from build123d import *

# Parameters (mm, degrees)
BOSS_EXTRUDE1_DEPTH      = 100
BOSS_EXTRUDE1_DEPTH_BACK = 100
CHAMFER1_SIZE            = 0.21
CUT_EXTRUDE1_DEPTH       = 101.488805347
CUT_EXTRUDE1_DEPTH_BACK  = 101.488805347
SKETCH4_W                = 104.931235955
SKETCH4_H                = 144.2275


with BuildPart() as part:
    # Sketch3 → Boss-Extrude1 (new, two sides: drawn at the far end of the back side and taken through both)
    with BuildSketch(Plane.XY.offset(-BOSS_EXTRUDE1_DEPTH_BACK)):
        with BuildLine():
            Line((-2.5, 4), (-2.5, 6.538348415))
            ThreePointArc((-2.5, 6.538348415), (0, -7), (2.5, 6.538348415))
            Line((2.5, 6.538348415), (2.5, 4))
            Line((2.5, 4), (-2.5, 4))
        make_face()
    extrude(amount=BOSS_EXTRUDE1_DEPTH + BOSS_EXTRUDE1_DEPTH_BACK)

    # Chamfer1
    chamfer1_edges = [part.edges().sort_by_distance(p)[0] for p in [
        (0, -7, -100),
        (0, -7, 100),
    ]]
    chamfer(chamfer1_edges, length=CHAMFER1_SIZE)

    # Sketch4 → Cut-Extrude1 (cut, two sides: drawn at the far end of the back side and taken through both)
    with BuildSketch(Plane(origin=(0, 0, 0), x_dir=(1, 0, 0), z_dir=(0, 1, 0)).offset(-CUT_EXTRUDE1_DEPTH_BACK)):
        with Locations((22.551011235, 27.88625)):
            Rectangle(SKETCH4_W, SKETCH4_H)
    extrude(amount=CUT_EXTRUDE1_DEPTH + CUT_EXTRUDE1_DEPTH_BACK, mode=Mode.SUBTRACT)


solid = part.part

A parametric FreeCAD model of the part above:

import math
import FreeCAD as App
import Part
import Sketcher
from FreeCAD import Vector


def edges_at(feature, points):
    """Names of the edges that pass closest to the given points."""
    edges = feature.Shape.Edges
    near = lambda p: min(range(len(edges)), key=lambda i: edges[i].distToShape(Part.Vertex(*p))[0])
    return sorted({f"Edge{near(p) + 1}" for p in points})

doc = App.newDocument("Part")
params = doc.addObject("Spreadsheet::Sheet", "Params")
for row, (alias, value) in enumerate([
    ("sketch1_radius", "7 mm"),
    ("sketch1_width", "5 mm"),
    ("pad1_length", "100 mm"),
    ("pad1_length2", "100 mm"),
    ("chamfer_size", "0.21 mm"),
], start=1):
    params.set(f"A{row}", alias)
    params.set(f"B{row}", "=" + value)
    params.setAlias(f"B{row}", alias)

body = doc.addObject("PartDesign::Body", "Body")

# Sketch on XY plane
sketch1 = doc.addObject("Sketcher::SketchObject", "Sketch")
body.addObject(sketch1)
sketch1.AttachmentSupport = (doc.XY_Plane, [""])
sketch1.MapMode = "FlatFace"
sketch1.addGeometry([
    Part.LineSegment(Vector(-2.5, 4, 0), Vector(-2.5, 6.5, 0)),
    Part.ArcOfCircle(Part.Circle(Vector(0, 0, 0), Vector(0, 0, 1), 7), math.radians(111), math.radians(429)),
    Part.LineSegment(Vector(2.5, 6.5, 0), Vector(2.5, 4, 0)),
    Part.LineSegment(Vector(2.5, 4, 0), Vector(-2.5, 4, 0)),
], False)
sketch1.addConstraint([
    Sketcher.Constraint("Coincident", 0, 2, 1, 1),
    Sketcher.Constraint("Coincident", 1, 2, 2, 1),
    Sketcher.Constraint("Coincident", 2, 2, 3, 1),
    Sketcher.Constraint("Coincident", 3, 2, 0, 1),
    Sketcher.Constraint("Vertical", 0),
    Sketcher.Constraint("Vertical", 2),
    Sketcher.Constraint("Horizontal", 3),
    Sketcher.Constraint("Coincident", 1, 3, -1, 1),
    Sketcher.Constraint("Horizontal", 0, 2, 1, 2),
    Sketcher.Constraint("Radius", 1, 7.0),
    Sketcher.Constraint("DistanceX", 3, 2, 3, 1, 5.0),
    Sketcher.Constraint("DistanceY", -1, 1, 2, 2, 4.0),
])
sketch1.setExpression("Constraints[9]", "Params.sketch1_radius")
sketch1.setExpression("Constraints[10]", "Params.sketch1_width")
pad1 = doc.addObject("PartDesign::Pad", "Pad")
body.addObject(pad1)
pad1.Profile = sketch1
pad1.Type = "TwoLengths"
pad1.setExpression("Length", "Params.pad1_length")
pad1.setExpression("Length2", "Params.pad1_length2")
doc.recompute()

chamfer = doc.addObject("PartDesign::Chamfer", "Chamfer")
body.addObject(chamfer)
chamfer.Base = (pad1, edges_at(pad1, [(0, -7, -100), (0, -7, 100)]))
chamfer.setExpression("Size", "Params.chamfer_size")

# Sketch on XZ plane
sketch2 = doc.addObject("Sketcher::SketchObject", "Sketch001")
body.addObject(sketch2)
sketch2.AttachmentSupport = (doc.XZ_Plane, [""])
sketch2.MapMode = "FlatFace"
sketch2.addGeometry([
    Part.LineSegment(Vector(-30, -100, 0), Vector(-30, 44, 0)),
    Part.LineSegment(Vector(-30, 44, 0), Vector(75, 44, 0)),
    Part.LineSegment(Vector(75, 44, 0), Vector(75, -100, 0)),
    Part.LineSegment(Vector(75, -100, 0), Vector(-30, -100, 0)),
], False)
sketch2.addConstraint([
    Sketcher.Constraint("Coincident", 0, 2, 1, 1),
    Sketcher.Constraint("Coincident", 1, 2, 2, 1),
    Sketcher.Constraint("Coincident", 2, 2, 3, 1),
    Sketcher.Constraint("Coincident", 3, 2, 0, 1),
    Sketcher.Constraint("Vertical", 0),
    Sketcher.Constraint("Horizontal", 1),
    Sketcher.Constraint("Vertical", 2),
    Sketcher.Constraint("Horizontal", 3),
    Sketcher.Constraint("DistanceY", 2, 2, -1, 1, 100.0),
    Sketcher.Constraint("DistanceY", 0, 1, 0, 2, 144.2275),
    Sketcher.Constraint("DistanceX", 1, 1, 1, 2, 104.931236),
    Sketcher.Constraint("DistanceX", -1, 1, 1, 2, 75.016629),
])
pocket1 = doc.addObject("PartDesign::Pocket", "Pocket")
body.addObject(pocket1)
pocket1.Profile = sketch2
pocket1.Type = "ThroughAll"
pocket1.Midplane = True

doc.recompute()
